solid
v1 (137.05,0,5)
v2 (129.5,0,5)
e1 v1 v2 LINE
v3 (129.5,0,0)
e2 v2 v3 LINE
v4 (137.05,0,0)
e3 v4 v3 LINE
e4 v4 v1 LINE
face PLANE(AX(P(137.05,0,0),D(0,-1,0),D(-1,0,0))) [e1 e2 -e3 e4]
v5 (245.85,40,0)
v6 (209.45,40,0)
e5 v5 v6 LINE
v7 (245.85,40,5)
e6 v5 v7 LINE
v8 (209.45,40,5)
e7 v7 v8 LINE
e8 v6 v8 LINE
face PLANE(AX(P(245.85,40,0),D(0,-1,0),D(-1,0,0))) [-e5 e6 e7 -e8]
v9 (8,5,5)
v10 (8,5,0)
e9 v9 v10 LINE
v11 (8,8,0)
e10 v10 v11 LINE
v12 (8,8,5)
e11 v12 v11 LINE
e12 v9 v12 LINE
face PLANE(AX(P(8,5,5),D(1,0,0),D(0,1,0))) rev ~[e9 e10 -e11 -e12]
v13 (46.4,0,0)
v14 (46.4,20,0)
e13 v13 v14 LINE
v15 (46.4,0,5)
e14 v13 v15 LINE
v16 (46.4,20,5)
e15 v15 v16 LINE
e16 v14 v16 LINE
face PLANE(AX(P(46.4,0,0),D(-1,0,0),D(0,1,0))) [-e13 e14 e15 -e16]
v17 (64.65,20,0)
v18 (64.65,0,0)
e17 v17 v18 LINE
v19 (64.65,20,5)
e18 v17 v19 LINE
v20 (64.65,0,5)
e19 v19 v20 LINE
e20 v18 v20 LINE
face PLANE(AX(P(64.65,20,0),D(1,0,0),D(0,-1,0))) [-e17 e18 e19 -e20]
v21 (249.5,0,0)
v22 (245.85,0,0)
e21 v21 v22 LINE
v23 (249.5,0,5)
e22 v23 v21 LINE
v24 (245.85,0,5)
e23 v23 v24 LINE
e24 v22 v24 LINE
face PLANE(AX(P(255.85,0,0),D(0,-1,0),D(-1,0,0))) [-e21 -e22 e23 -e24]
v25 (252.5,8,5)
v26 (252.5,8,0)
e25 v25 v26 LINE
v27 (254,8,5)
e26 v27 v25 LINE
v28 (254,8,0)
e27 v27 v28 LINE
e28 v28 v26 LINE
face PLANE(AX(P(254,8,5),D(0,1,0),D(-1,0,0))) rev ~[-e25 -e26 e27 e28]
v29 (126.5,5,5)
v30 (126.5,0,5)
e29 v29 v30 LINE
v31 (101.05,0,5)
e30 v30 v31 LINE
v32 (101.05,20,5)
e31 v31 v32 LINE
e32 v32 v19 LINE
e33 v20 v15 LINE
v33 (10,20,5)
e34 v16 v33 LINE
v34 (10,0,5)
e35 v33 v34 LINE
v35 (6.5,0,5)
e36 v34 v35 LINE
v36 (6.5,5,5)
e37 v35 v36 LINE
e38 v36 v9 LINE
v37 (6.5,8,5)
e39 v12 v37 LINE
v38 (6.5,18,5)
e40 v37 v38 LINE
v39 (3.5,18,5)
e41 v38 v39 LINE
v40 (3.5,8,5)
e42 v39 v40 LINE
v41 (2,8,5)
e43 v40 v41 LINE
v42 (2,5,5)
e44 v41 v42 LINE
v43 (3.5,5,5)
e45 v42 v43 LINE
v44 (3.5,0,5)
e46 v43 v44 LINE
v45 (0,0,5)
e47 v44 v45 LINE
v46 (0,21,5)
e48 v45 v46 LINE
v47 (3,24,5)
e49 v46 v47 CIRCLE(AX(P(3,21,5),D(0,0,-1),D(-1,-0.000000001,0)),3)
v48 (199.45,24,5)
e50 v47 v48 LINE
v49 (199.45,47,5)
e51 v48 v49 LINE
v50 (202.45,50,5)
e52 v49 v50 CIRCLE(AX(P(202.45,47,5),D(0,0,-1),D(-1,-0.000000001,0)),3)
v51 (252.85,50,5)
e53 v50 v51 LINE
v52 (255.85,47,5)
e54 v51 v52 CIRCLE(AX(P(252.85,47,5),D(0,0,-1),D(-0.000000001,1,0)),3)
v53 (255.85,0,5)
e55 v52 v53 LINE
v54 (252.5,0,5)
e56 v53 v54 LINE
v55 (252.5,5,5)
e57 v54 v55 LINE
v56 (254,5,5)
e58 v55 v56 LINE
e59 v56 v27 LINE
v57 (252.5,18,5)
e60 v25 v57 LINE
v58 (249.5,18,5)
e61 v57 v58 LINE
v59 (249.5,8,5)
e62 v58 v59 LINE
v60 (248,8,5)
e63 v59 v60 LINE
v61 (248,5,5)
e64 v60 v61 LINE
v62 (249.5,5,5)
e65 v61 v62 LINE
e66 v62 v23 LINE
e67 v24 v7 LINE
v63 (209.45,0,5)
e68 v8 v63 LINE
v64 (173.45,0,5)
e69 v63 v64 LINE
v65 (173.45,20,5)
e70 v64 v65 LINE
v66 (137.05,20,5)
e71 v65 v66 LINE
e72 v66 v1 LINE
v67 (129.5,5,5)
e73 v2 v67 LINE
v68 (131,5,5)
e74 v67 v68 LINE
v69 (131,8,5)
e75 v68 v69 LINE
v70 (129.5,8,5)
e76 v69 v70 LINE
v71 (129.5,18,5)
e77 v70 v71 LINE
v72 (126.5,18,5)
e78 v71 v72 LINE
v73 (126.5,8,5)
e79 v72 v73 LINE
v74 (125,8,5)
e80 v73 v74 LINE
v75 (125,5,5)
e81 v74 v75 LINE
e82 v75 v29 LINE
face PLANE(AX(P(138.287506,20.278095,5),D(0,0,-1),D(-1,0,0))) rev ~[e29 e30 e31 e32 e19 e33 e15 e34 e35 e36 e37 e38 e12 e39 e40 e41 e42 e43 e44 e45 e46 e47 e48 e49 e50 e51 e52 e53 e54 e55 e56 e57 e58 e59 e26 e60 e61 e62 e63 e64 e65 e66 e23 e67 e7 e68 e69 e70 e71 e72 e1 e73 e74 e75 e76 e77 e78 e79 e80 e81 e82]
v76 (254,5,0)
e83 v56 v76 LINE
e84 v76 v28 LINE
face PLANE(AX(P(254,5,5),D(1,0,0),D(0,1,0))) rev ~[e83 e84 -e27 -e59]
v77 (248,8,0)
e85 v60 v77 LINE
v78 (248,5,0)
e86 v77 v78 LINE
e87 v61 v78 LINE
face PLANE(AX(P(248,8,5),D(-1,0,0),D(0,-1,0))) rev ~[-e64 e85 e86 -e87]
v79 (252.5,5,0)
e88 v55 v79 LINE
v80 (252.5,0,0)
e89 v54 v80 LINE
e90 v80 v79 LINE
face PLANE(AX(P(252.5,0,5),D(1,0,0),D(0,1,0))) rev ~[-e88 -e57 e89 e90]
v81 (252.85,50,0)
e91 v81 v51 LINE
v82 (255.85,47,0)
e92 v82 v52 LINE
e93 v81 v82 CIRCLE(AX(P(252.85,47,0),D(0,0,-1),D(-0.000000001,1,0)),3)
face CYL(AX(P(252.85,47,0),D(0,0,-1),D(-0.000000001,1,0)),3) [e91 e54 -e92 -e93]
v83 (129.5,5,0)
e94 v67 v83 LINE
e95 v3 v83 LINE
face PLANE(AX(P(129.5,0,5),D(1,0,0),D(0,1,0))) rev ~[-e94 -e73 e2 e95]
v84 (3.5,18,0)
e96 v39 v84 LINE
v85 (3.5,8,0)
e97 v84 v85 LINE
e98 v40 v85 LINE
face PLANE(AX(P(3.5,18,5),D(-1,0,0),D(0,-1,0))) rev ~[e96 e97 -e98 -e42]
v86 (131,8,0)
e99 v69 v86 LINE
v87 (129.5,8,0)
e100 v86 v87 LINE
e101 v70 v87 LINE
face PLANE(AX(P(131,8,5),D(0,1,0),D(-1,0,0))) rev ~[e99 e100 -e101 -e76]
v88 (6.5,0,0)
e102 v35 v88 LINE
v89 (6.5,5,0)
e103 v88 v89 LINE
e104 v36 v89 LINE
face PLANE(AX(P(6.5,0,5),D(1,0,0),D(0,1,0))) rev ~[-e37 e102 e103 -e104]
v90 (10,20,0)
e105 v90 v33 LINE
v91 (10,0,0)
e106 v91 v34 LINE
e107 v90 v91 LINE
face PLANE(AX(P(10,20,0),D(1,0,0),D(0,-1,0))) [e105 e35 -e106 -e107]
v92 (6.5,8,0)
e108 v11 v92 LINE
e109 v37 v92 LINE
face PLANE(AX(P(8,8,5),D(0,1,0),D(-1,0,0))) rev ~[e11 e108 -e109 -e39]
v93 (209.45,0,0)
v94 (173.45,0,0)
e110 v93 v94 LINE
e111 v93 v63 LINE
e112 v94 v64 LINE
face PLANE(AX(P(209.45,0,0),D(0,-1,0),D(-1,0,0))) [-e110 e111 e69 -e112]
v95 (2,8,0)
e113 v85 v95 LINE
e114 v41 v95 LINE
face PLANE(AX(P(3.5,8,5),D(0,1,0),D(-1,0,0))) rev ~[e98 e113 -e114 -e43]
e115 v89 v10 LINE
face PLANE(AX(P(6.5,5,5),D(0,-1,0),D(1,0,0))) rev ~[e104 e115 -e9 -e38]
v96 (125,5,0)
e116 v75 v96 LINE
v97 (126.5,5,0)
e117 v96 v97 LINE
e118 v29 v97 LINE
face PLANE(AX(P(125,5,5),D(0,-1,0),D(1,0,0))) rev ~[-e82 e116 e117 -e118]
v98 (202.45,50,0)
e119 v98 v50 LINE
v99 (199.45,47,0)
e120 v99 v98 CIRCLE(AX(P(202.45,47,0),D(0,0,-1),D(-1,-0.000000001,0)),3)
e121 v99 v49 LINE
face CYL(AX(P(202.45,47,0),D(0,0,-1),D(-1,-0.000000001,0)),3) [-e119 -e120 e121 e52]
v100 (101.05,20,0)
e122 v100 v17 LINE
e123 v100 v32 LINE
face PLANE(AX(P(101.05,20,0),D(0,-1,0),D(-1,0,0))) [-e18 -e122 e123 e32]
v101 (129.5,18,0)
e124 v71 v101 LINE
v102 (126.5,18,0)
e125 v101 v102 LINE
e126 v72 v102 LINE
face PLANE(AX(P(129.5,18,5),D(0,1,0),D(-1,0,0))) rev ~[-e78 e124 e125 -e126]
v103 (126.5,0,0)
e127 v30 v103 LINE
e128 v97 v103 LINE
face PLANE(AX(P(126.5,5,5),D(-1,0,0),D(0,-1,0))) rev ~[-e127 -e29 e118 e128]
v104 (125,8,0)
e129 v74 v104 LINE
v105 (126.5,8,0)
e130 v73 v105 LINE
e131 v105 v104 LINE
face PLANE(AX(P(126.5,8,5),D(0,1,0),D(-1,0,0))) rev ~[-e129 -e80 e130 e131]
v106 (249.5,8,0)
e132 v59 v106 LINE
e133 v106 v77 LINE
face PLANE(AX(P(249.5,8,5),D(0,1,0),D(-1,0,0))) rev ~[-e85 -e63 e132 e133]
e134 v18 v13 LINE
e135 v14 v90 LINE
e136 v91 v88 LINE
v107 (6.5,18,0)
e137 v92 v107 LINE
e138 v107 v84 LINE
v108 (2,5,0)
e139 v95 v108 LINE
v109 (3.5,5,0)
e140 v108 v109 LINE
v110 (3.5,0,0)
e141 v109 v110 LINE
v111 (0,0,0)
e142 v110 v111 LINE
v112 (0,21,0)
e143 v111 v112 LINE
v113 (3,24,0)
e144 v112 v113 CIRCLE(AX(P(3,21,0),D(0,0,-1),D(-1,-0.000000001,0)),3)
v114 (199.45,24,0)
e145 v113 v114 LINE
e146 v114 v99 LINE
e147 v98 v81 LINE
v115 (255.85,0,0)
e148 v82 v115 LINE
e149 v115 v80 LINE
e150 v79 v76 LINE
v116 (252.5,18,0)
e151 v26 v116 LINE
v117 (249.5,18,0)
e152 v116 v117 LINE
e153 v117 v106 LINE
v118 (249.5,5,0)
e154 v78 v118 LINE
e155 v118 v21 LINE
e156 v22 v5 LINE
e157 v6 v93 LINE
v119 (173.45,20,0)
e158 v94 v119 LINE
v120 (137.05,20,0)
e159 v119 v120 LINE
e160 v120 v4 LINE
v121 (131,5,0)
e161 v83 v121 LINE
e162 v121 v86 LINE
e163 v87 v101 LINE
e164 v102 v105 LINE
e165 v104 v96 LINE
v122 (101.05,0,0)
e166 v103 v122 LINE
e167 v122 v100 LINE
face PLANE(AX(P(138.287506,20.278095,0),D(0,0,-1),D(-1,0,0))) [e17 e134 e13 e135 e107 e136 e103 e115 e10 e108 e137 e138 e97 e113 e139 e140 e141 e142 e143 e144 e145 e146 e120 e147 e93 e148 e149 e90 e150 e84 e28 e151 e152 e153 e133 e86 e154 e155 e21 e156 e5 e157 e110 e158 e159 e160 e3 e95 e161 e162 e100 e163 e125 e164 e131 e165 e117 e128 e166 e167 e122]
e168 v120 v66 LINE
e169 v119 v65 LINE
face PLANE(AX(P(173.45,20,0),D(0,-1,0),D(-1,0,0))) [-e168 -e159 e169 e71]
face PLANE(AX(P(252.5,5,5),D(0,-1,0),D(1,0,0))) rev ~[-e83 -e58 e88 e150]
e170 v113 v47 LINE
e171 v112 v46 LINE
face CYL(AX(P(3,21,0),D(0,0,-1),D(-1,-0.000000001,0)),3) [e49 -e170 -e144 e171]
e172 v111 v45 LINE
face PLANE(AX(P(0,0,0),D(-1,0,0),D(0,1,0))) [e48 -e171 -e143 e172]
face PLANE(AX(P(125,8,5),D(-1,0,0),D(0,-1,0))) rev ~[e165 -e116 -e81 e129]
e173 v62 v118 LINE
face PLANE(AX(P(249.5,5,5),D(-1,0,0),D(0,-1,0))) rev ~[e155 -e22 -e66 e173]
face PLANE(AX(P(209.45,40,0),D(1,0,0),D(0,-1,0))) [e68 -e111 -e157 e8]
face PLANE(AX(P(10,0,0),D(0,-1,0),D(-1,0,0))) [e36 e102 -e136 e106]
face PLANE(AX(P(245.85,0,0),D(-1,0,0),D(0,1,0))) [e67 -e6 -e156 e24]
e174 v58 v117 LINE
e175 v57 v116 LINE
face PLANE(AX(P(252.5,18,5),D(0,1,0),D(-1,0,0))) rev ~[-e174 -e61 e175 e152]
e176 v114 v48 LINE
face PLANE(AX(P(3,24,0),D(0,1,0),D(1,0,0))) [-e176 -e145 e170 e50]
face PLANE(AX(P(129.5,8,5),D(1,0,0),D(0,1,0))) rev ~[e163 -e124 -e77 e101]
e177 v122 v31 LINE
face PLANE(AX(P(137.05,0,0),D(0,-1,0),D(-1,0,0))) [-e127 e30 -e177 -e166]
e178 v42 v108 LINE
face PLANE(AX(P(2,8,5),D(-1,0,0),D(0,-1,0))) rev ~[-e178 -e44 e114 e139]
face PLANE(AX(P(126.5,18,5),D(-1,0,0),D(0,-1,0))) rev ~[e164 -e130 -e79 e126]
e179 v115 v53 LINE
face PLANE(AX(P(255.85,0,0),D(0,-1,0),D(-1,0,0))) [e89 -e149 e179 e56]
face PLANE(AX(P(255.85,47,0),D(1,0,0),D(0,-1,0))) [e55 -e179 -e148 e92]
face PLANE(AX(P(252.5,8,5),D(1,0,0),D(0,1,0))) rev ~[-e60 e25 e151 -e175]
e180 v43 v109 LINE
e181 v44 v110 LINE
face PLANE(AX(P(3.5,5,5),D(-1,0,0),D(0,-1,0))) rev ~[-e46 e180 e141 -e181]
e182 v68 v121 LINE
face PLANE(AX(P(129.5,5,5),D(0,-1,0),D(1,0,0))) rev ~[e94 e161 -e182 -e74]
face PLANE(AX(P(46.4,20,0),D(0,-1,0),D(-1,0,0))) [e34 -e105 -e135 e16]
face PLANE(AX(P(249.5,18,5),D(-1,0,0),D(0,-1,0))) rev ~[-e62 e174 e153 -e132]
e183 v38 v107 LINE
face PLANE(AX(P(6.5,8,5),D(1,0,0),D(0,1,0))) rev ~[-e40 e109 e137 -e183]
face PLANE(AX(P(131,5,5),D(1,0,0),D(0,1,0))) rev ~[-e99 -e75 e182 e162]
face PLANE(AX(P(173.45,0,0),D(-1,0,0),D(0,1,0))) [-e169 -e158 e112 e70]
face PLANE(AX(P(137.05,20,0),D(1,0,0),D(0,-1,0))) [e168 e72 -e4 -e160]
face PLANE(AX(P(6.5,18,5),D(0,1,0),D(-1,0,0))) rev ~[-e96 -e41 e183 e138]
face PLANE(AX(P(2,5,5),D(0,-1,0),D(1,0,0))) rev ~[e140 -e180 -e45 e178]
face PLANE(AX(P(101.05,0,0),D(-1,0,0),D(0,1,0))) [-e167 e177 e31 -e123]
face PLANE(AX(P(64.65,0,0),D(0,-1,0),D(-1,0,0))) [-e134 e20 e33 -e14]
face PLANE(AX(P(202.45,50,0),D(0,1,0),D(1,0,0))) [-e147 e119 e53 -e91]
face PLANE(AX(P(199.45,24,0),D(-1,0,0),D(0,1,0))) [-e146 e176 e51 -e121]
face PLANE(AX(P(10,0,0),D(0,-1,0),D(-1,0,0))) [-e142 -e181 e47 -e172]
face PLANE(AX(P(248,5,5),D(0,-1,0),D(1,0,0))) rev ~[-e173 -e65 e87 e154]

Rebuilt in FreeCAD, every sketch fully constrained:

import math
import FreeCAD as App
import Part
import Sketcher

V = App.Vector

doc = App.newDocument("Part")
params = doc.addObject("Spreadsheet::Sheet", "Params")
for row, (alias, value) in enumerate([
    ("sketch1_radius", "3 mm"),
    ("sketch1_width", "10 mm"),
    ("sketch1_width2", "36 mm"),
    ("sketch1_height", "21 mm"),
    ("sketch1_height2", "20 mm"),
    ("pad1_length", "5 mm"),
    ("sketch2_width", "3 mm"),
    ("sketch2_height", "5 mm"),
    ("sketch2_height2", "10 mm"),
    ("sketch2_width2", "1.5 mm"),
    ("pocket1_length", "5 mm"),
    ("linearpattern_pitch", "123 mm"),
], start=1):
    params.set(f"A{row}", alias)
    params.set(f"B{row}", "=" + value)
    params.setAlias(f"B{row}", alias)

body = doc.addObject("PartDesign::Body", "Body")

# Sketch on XY plane
sketch1 = doc.addObject("Sketcher::SketchObject", "Sketch")
body.addObject(sketch1)
sketch1.AttachmentSupport = (doc.XY_Plane, [""])
sketch1.MapMode = "FlatFace"
sketch1.addGeometry([
    Part.LineSegment(V(0, 21, 0), V(0, 0, 0)),  # 0
    Part.LineSegment(V(0, 0, 0), V(10, 0, 0)),  # 1
    Part.LineSegment(V(10, 0, 0), V(10, 20, 0)),  # 2
    Part.LineSegment(V(10, 20, 0), V(46.4, 20, 0)),  # 3
    Part.LineSegment(V(46.4, 20, 0), V(46.4, 0, 0)),  # 4
    Part.LineSegment(V(46.4, 0, 0), V(64.7, 0, 0)),  # 5
    Part.LineSegment(V(64.7, 0, 0), V(64.7, 20, 0)),  # 6
    Part.LineSegment(V(64.7, 20, 0), V(101, 20, 0)),  # 7
    Part.LineSegment(V(101, 20, 0), V(101, 0, 0)),  # 8
    Part.LineSegment(V(101, 0, 0), V(137.1, 0, 0)),  # 9
    Part.LineSegment(V(137.1, 0, 0), V(137.1, 20, 0)),  # 10
    Part.LineSegment(V(137.1, 20, 0), V(173.4, 20, 0)),  # 11
    Part.LineSegment(V(173.4, 20, 0), V(173.4, 0, 0)),  # 12
    Part.LineSegment(V(173.4, 0, 0), V(209.4, 0, 0)),  # 13
    Part.LineSegment(V(209.4, 0, 0), V(209.4, 40, 0)),  # 14
    Part.LineSegment(V(209.4, 40, 0), V(245.8, 40, 0)),  # 15
    Part.LineSegment(V(245.8, 40, 0), V(245.8, 0, 0)),  # 16
    Part.LineSegment(V(245.8, 0, 0), V(255.8, 0, 0)),  # 17
    Part.LineSegment(V(255.8, 0, 0), V(255.8, 47, 0)),  # 18
    Part.ArcOfCircle(Part.Circle(V(252.9, 47, 0), V(0, 0, 1), 3), math.radians(0), math.radians(90)),  # 19
    Part.LineSegment(V(252.8, 50, 0), V(202.4, 50, 0)),  # 20
    Part.ArcOfCircle(Part.Circle(V(202.4, 47, 0), V(0, 0, 1), 3), math.radians(90), math.radians(180)),  # 21
    Part.LineSegment(V(199.4, 47, 0), V(199.4, 24, 0)),  # 22
    Part.LineSegment(V(199.4, 24, 0), V(3, 24, 0)),  # 23
    Part.ArcOfCircle(Part.Circle(V(3, 21, 0), V(0, 0, 1), 3), math.radians(90), math.radians(180)),  # 24
], False)
sketch1.addConstraint([
    Sketcher.Constraint("Coincident", 0, 2, 1, 1),
    Sketcher.Constraint("Coincident", 1, 2, 2, 1),
    Sketcher.Constraint("Coincident", 2, 2, 3, 1),
    Sketcher.Constraint("Coincident", 3, 2, 4, 1),
    Sketcher.Constraint("Coincident", 4, 2, 5, 1),
    Sketcher.Constraint("Coincident", 5, 2, 6, 1),
    Sketcher.Constraint("Coincident", 6, 2, 7, 1),
    Sketcher.Constraint("Coincident", 7, 2, 8, 1),
    Sketcher.Constraint("Coincident", 8, 2, 9, 1),
    Sketcher.Constraint("Coincident", 9, 2, 10, 1),
    Sketcher.Constraint("Coincident", 10, 2, 11, 1),
    Sketcher.Constraint("Coincident", 11, 2, 12, 1),
    Sketcher.Constraint("Coincident", 12, 2, 13, 1),
    Sketcher.Constraint("Coincident", 13, 2, 14, 1),
    Sketcher.Constraint("Coincident", 14, 2, 15, 1),
    Sketcher.Constraint("Coincident", 15, 2, 16, 1),
    Sketcher.Constraint("Coincident", 16, 2, 17, 1),
    Sketcher.Constraint("Coincident", 17, 2, 18, 1),
    Sketcher.Constraint("Tangent", 18, 2, 19, 1),
    Sketcher.Constraint("Tangent", 19, 2, 20, 1),
    Sketcher.Constraint("Tangent", 20, 2, 21, 1),
    Sketcher.Constraint("Tangent", 21, 2, 22, 1),
    Sketcher.Constraint("Coincident", 22, 2, 23, 1),
    Sketcher.Constraint("Tangent", 23, 2, 24, 1),
    Sketcher.Constraint("Tangent", 24, 2, 0, 1),
    Sketcher.Constraint("Vertical", 0),
    Sketcher.Constraint("Horizontal", 1),
    Sketcher.Constraint("Vertical", 2),
    Sketcher.Constraint("Horizontal", 3),
    Sketcher.Constraint("Vertical", 4),
    Sketcher.Constraint("Horizontal", 5),
    Sketcher.Constraint("Vertical", 6),
    Sketcher.Constraint("Horizontal", 7),
    Sketcher.Constraint("Vertical", 8),
    Sketcher.Constraint("Horizontal", 9),
    Sketcher.Constraint("Vertical", 10),
    Sketcher.Constraint("Horizontal", 11),
    Sketcher.Constraint("Vertical", 12),
    Sketcher.Constraint("Horizontal", 13),
    Sketcher.Constraint("Vertical", 14),
    Sketcher.Constraint("Horizontal", 15),
    Sketcher.Constraint("Vertical", 16),
    Sketcher.Constraint("Horizontal", 17),
    Sketcher.Constraint("Vertical", 18),
    Sketcher.Constraint("Horizontal", 20),
    Sketcher.Constraint("Vertical", 22),
    Sketcher.Constraint("Horizontal", 23),
    Sketcher.Constraint("Coincident", 0, 2, -1, 1),
    Sketcher.Constraint("Equal", 19, 21),
    Sketcher.Constraint("Equal", 21, 24),
    Sketcher.Constraint("PointOnObject", 4, 2, -1),
    Sketcher.Constraint("PointOnObject", 8, 2, -1),
    Sketcher.Constraint("PointOnObject", 12, 2, -1),
    Sketcher.Constraint("PointOnObject", 16, 2, -1),
    Sketcher.Constraint("Horizontal", 3, 2, 6, 2),
    Sketcher.Constraint("Horizontal", 7, 2, 10, 2),
    Sketcher.Constraint("Equal", 3, 7),
    Sketcher.Constraint("Equal", 7, 11),
    Sketcher.Constraint("Equal", 9, 13),
    Sketcher.Constraint("Equal", 11, 15),
    Sketcher.Constraint("Equal", 1, 17),
    Sketcher.Constraint("Radius", 19, 3.0),
    Sketcher.Constraint("DistanceX", 1, 1, 1, 2, 10.0),
    Sketcher.Constraint("DistanceX", 9, 1, 9, 2, 36.0),
    Sketcher.Constraint("DistanceY", 0, 2, 0, 1, 21.0),
    Sketcher.Constraint("DistanceY", 2, 1, 2, 2, 20.0),
    Sketcher.Constraint("DistanceY", 14, 1, 14, 2, 40.0),
    Sketcher.Constraint("DistanceY", 18, 1, 18, 2, 47.0),
    Sketcher.Constraint("DistanceX", 3, 1, 3, 2, 36.4),
    Sketcher.Constraint("DistanceX", 20, 2, 20, 1, 50.4),
    Sketcher.Constraint("DistanceX", 5, 1, 5, 2, 18.25),
])
sketch1.setExpression("Constraints[61]", "Params.sketch1_radius")
sketch1.setExpression("Constraints[62]", "Params.sketch1_width")
sketch1.setExpression("Constraints[63]", "Params.sketch1_width2")
sketch1.setExpression("Constraints[64]", "Params.sketch1_height")
sketch1.setExpression("Constraints[65]", "Params.sketch1_height2")
pad1 = doc.addObject("PartDesign::Pad", "Pad")
body.addObject(pad1)
pad1.Profile = sketch1
pad1.setExpression("Length", "Params.pad1_length")

# Sketch on XY plane
sketch2 = doc.addObject("Sketcher::SketchObject", "Sketch001")
body.addObject(sketch2)
sketch2.AttachmentSupport = (doc.XY_Plane, [""])
sketch2.MapMode = "FlatFace"
sketch2.AttachmentOffset = App.Placement(V(0, 0, 5), App.Rotation())
sketch2.addGeometry([
    Part.LineSegment(V(6.5, 0, 0), V(6.5, 5, 0)),  # 0
    Part.LineSegment(V(6.5, 5, 0), V(8, 5, 0)),  # 1
    Part.LineSegment(V(8, 5, 0), V(8, 8, 0)),  # 2
    Part.LineSegment(V(8, 8, 0), V(6.5, 8, 0)),  # 3
    Part.LineSegment(V(6.5, 8, 0), V(6.5, 18, 0)),  # 4
    Part.LineSegment(V(6.5, 18, 0), V(3.5, 18, 0)),  # 5
    Part.LineSegment(V(3.5, 18, 0), V(3.5, 8, 0)),  # 6
    Part.LineSegment(V(3.5, 8, 0), V(2, 8, 0)),  # 7
    Part.LineSegment(V(2, 8, 0), V(2, 5, 0)),  # 8
    Part.LineSegment(V(2, 5, 0), V(3.5, 5, 0)),  # 9
    Part.LineSegment(V(3.5, 5, 0), V(3.5, 0, 0)),  # 10
    Part.LineSegment(V(3.5, 0, 0), V(6.5, 0, 0)),  # 11
], False)
sketch2.addConstraint([
    Sketcher.Constraint("Coincident", 0, 2, 1, 1),
    Sketcher.Constraint("Coincident", 1, 2, 2, 1),
    Sketcher.Constraint("Coincident", 2, 2, 3, 1),
    Sketcher.Constraint("Coincident", 3, 2, 4, 1),
    Sketcher.Constraint("Coincident", 4, 2, 5, 1),
    Sketcher.Constraint("Coincident", 5, 2, 6, 1),
    Sketcher.Constraint("Coincident", 6, 2, 7, 1),
    Sketcher.Constraint("Coincident", 7, 2, 8, 1),
    Sketcher.Constraint("Coincident", 8, 2, 9, 1),
    Sketcher.Constraint("Coincident", 9, 2, 10, 1),
    Sketcher.Constraint("Coincident", 10, 2, 11, 1),
    Sketcher.Constraint("Coincident", 11, 2, 0, 1),
    Sketcher.Constraint("Vertical", 0),
    Sketcher.Constraint("Horizontal", 1),
    Sketcher.Constraint("Vertical", 2),
    Sketcher.Constraint("Horizontal", 3),
    Sketcher.Constraint("Vertical", 4),
    Sketcher.Constraint("Horizontal", 5),
    Sketcher.Constraint("Vertical", 6),
    Sketcher.Constraint("Horizontal", 7),
    Sketcher.Constraint("Vertical", 8),
    Sketcher.Constraint("Horizontal", 9),
    Sketcher.Constraint("Vertical", 10),
    Sketcher.Constraint("Horizontal", 11),
    Sketcher.Constraint("PointOnObject", 10, 2, -1),
    Sketcher.Constraint("Horizontal", 3, 2, 6, 2),
    Sketcher.Constraint("Horizontal", 1, 2, 8, 2),
    Sketcher.Constraint("Vertical", 0, 2, 3, 2),
    Sketcher.Constraint("Vertical", 6, 2, 9, 2),
    Sketcher.Constraint("Equal", 3, 7),
    Sketcher.Constraint("Equal", 11, 2),
    Sketcher.Constraint("DistanceX", 5, 2, 5, 1, 3.0),
    Sketcher.Constraint("DistanceY", 0, 1, 0, 2, 5.0),
    Sketcher.Constraint("DistanceY", 4, 1, 4, 2, 10.0),
    Sketcher.Constraint("DistanceX", 1, 1, 1, 2, 1.5),
    Sketcher.Constraint("DistanceX", -1, 1, 1, 2, 8.0),
])
sketch2.setExpression("Constraints[31]", "Params.sketch2_width")
sketch2.setExpression("Constraints[32]", "Params.sketch2_height")
sketch2.setExpression("Constraints[33]", "Params.sketch2_height2")
sketch2.setExpression("Constraints[34]", "Params.sketch2_width2")
pocket1 = doc.addObject("PartDesign::Pocket", "Pocket")
body.addObject(pocket1)
pocket1.Profile = sketch2
pocket1.setExpression("Length", "Params.pocket1_length")
doc.recompute()

linearpattern = doc.addObject("PartDesign::LinearPattern", "LinearPattern")
body.addObject(linearpattern)
linearpattern.Originals = [pocket1]
linearpattern.Direction = (doc.X_Axis, [""])
linearpattern.Mode = "offset"
linearpattern.setExpression("Offset", "Params.linearpattern_pitch")
linearpattern.Occurrences = 3
body.Tip = linearpattern

doc.recompute()
